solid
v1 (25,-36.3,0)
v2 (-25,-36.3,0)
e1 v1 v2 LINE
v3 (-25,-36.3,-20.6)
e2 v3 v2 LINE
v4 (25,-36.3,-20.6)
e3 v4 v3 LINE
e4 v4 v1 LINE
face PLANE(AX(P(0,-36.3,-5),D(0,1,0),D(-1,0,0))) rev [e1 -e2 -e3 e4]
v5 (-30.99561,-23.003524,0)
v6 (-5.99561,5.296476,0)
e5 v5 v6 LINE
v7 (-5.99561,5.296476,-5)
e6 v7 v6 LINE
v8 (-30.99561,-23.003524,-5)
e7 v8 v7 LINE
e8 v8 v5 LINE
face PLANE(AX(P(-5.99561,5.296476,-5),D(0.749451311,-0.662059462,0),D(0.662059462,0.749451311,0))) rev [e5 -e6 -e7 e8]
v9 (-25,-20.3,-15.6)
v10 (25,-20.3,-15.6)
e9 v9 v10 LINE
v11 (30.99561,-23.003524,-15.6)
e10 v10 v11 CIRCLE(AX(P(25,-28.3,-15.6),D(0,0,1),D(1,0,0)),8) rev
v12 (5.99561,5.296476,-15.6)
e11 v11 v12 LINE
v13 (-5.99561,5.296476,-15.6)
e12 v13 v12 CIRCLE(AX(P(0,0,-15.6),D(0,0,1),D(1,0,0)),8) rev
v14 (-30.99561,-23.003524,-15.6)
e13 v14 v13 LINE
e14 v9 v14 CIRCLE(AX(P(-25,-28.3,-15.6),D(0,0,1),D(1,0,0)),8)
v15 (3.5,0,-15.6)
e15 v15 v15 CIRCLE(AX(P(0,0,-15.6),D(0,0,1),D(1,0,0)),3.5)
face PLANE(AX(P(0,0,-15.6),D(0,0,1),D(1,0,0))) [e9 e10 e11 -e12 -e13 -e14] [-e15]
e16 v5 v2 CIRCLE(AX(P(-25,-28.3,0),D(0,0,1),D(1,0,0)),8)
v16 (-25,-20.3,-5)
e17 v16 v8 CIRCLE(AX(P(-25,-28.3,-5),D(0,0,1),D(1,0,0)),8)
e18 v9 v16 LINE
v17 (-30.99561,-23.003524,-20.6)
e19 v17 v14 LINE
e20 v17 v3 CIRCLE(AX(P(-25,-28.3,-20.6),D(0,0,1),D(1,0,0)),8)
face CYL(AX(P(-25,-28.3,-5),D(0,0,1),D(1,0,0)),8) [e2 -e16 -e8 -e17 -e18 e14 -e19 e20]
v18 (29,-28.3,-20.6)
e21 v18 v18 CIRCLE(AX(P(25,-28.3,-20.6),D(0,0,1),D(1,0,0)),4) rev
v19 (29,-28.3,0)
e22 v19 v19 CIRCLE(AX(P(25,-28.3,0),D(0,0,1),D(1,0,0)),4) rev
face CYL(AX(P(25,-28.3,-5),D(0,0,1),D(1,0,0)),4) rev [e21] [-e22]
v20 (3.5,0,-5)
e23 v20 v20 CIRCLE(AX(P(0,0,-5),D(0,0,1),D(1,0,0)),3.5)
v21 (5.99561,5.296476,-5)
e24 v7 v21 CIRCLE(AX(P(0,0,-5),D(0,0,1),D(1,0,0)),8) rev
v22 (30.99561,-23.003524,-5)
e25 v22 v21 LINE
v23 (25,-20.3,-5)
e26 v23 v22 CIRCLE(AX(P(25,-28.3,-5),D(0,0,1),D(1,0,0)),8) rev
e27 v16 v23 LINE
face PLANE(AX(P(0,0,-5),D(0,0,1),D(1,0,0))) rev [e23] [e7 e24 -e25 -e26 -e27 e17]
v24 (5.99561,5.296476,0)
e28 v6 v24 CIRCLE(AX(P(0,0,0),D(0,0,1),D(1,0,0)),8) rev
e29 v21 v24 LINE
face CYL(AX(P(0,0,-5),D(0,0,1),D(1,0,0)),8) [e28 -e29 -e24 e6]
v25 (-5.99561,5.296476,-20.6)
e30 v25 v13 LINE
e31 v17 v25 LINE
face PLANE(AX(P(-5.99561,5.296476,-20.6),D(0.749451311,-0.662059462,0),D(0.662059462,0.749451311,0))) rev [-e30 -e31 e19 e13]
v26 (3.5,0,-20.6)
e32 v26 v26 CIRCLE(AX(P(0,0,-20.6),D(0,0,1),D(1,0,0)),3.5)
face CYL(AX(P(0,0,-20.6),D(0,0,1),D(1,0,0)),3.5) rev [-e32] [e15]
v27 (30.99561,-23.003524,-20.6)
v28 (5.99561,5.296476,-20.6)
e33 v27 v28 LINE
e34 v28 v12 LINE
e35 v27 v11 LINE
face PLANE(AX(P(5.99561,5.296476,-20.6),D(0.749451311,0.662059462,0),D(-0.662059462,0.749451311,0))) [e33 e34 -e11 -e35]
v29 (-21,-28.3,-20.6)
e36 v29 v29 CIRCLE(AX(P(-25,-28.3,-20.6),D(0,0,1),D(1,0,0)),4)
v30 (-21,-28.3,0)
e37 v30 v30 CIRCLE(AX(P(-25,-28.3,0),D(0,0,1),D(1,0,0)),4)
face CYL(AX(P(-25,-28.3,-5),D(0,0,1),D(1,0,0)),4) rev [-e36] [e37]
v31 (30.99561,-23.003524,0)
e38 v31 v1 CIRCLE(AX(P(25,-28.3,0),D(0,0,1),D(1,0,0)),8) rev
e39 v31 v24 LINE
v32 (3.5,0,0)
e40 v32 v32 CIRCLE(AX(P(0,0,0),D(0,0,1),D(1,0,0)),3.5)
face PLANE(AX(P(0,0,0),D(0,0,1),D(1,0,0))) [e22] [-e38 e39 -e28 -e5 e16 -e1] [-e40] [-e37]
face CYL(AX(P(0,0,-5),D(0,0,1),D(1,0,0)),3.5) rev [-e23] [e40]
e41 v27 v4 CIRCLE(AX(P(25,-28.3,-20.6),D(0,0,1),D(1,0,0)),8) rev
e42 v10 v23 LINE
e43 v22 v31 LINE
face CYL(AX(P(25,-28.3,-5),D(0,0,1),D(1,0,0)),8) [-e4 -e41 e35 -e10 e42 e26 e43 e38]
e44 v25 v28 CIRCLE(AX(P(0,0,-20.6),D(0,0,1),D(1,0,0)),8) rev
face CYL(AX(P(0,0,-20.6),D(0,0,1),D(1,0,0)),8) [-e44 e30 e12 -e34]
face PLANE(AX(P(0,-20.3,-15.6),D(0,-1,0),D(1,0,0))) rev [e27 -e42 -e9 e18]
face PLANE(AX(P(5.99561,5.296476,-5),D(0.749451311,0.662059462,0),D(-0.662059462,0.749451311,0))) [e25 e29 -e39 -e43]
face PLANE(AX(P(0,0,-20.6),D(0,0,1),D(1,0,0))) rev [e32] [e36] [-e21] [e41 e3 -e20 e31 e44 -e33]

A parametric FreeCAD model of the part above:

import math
import FreeCAD as App
import Part
import Sketcher

doc = App.newDocument("Part")
body = doc.addObject("PartDesign::Body", "Body")

# Sketch on XY plane
sketch1 = body.newObject("Sketcher::SketchObject", "Sketch")
sketch1.AttachmentSupport = (doc.getObject("XY_Plane"), [""])
sketch1.MapMode = "FlatFace"
sketch1.addGeometry([
    Part.LineSegment(App.Vector(-25, -36.3, 0), App.Vector(25, -36.3, 0)),  # 0
    Part.ArcOfCircle(Part.Circle(App.Vector(25, -28.3, 0), App.Vector(0, 0, 1), 8), math.radians(-90), math.radians(41)),  # 1
    Part.LineSegment(App.Vector(31, -23, 0), App.Vector(6, 5.3, 0)),  # 2
    Part.ArcOfCircle(Part.Circle(App.Vector(0, 0, 0), App.Vector(0, 0, 1), 8), math.radians(41), math.radians(139)),  # 3
    Part.LineSegment(App.Vector(-6, 5.3, 0), App.Vector(-31, -23, 0)),  # 4
    Part.ArcOfCircle(Part.Circle(App.Vector(-25, -28.3, 0), App.Vector(0, 0, 1), 8), math.radians(139), math.radians(270)),  # 5
    Part.Circle(App.Vector(-25, -28.3, 0), App.Vector(0, 0, 1), 4),  # 6
    Part.Circle(App.Vector(25, -28.3, 0), App.Vector(0, 0, 1), 4),  # 7
    Part.Circle(App.Vector(0, 0, 0), App.Vector(0, 0, 1), 3.5),  # 8
], False)
sketch1.addConstraint([
    Sketcher.Constraint("Tangent", 0, 2, 1, 1),
    Sketcher.Constraint("Tangent", 1, 2, 2, 1),
    Sketcher.Constraint("Tangent", 2, 2, 3, 1),
    Sketcher.Constraint("Tangent", 3, 2, 4, 1),
    Sketcher.Constraint("Tangent", 4, 2, 5, 1),
    Sketcher.Constraint("Tangent", 5, 2, 0, 1),
    Sketcher.Constraint("Horizontal", 0),
    Sketcher.Constraint("Coincident", 3, 3, -1, 1),
    Sketcher.Constraint("Coincident", 8, 3, -1, 1),
    Sketcher.Constraint("Coincident", 6, 3, 5, 3),
    Sketcher.Constraint("Coincident", 7, 3, 1, 3),
    Sketcher.Constraint("Equal", 1, 3),
    Sketcher.Constraint("Equal", 3, 5),
    Sketcher.Constraint("Equal", 6, 7),
    Sketcher.Constraint("Horizontal", 2, 2, 3, 2),
    Sketcher.Constraint("Diameter", 6, 8.0),
    Sketcher.Constraint("Diameter", 8, 7.0),
    Sketcher.Constraint("Radius", 1, 8.0),
    Sketcher.Constraint("DistanceX", 0, 1, 0, 2, 50.0),
    Sketcher.Constraint("DistanceY", 1, 3, -1, 1, 28.3),
])
pad1 = body.newObject("PartDesign::Pad", "Pad")
pad1.Profile = sketch1
pad1.Length = 5
pad1.Reversed = True

# Sketch on XY plane
sketch2 = body.newObject("Sketcher::SketchObject", "Sketch001")
sketch2.AttachmentSupport = (doc.getObject("XY_Plane"), [""])
sketch2.MapMode = "FlatFace"
sketch2.AttachmentOffset = App.Placement(App.Vector(0, 0, -5), App.Rotation())
sketch2.addGeometry([
    Part.LineSegment(App.Vector(-25, -36.3, 0), App.Vector(25, -36.3, 0)),  # 0
    Part.ArcOfCircle(Part.Circle(App.Vector(25, -28.3, 0), App.Vector(0, 0, 1), 8), math.radians(-90), math.radians(41)),  # 1
    Part.ArcOfCircle(Part.Circle(App.Vector(25, -28.3, 0), App.Vector(0, 0, 1), 8), math.radians(41), math.radians(90)),  # 2
    Part.LineSegment(App.Vector(25, -20.3, 0), App.Vector(-25, -20.3, 0)),  # 3
    Part.ArcOfCircle(Part.Circle(App.Vector(-25, -28.3, 0), App.Vector(0, 0, 1), 8), math.radians(90), math.radians(139)),  # 4
    Part.ArcOfCircle(Part.Circle(App.Vector(-25, -28.3, 0), App.Vector(0, 0, 1), 8), math.radians(139), math.radians(270)),  # 5
    Part.Circle(App.Vector(-25, -28.3, 0), App.Vector(0, 0, 1), 4),  # 6
    Part.Circle(App.Vector(25, -28.3, 0), App.Vector(0, 0, 1), 4),  # 7
], False)
sketch2.addConstraint([
    Sketcher.Constraint("Tangent", 0, 2, 1, 1),
    Sketcher.Constraint("Tangent", 1, 2, 2, 1),
    Sketcher.Constraint("Tangent", 2, 2, 3, 1),
    Sketcher.Constraint("Tangent", 3, 2, 4, 1),
    Sketcher.Constraint("Tangent", 4, 2, 5, 1),
    Sketcher.Constraint("Tangent", 5, 2, 0, 1),
    Sketcher.Constraint("Horizontal", 0),
    Sketcher.Constraint("Horizontal", 3),
    Sketcher.Constraint("Coincident", 6, 3, 4, 3),
    Sketcher.Constraint("Coincident", 7, 3, 1, 3),
    Sketcher.Constraint("Equal", 1, 2),
    Sketcher.Constraint("Equal", 2, 4),
    Sketcher.Constraint("Equal", 6, 7),
    Sketcher.Constraint("Symmetric", 1, 2, 4, 2, -2),
    Sketcher.Constraint("Diameter", 6, 8.0),
    Sketcher.Constraint("Radius", 1, 8.0),
    Sketcher.Constraint("DistanceX", 0, 1, 0, 2, 50.0),
    Sketcher.Constraint("DistanceY", 1, 3, -1, 1, 28.3),
    Sketcher.Constraint("DistanceX", -1, 1, 1, 2, 30.99561),
])
pad2 = body.newObject("PartDesign::Pad", "Pad001")
pad2.Profile = sketch2
pad2.Length = 10.6
pad2.Reversed = True

# Sketch on XY plane
sketch3 = body.newObject("Sketcher::SketchObject", "Sketch002")
sketch3.AttachmentSupport = (doc.getObject("XY_Plane"), [""])
sketch3.MapMode = "FlatFace"
sketch3.AttachmentOffset = App.Placement(App.Vector(0, 0, -15.6), App.Rotation())
sketch3.addGeometry([
    Part.LineSegment(App.Vector(-25, -36.3, 0), App.Vector(25, -36.3, 0)),  # 0
    Part.ArcOfCircle(Part.Circle(App.Vector(25, -28.3, 0), App.Vector(0, 0, 1), 8), math.radians(-90), math.radians(41)),  # 1
    Part.LineSegment(App.Vector(31, -23, 0), App.Vector(6, 5.3, 0)),  # 2
    Part.ArcOfCircle(Part.Circle(App.Vector(0, 0, 0), App.Vector(0, 0, 1), 8), math.radians(41), math.radians(139)),  # 3
    Part.LineSegment(App.Vector(-6, 5.3, 0), App.Vector(-31, -23, 0)),  # 4
    Part.ArcOfCircle(Part.Circle(App.Vector(-25, -28.3, 0), App.Vector(0, 0, 1), 8), math.radians(139), math.radians(270)),  # 5
    Part.Circle(App.Vector(-25, -28.3, 0), App.Vector(0, 0, 1), 4),  # 6
    Part.Circle(App.Vector(25, -28.3, 0), App.Vector(0, 0, 1), 4),  # 7
    Part.Circle(App.Vector(0, 0, 0), App.Vector(0, 0, 1), 3.5),  # 8
], False)
sketch3.addConstraint([
    Sketcher.Constraint("Tangent", 0, 2, 1, 1),
    Sketcher.Constraint("Tangent", 1, 2, 2, 1),
    Sketcher.Constraint("Tangent", 2, 2, 3, 1),
    Sketcher.Constraint("Tangent", 3, 2, 4, 1),
    Sketcher.Constraint("Tangent", 4, 2, 5, 1),
    Sketcher.Constraint("Tangent", 5, 2, 0, 1),
    Sketcher.Constraint("Horizontal", 0),
    Sketcher.Constraint("Coincident", 3, 3, -1, 1),
    Sketcher.Constraint("Coincident", 8, 3, -1, 1),
    Sketcher.Constraint("Coincident", 6, 3, 5, 3),
    Sketcher.Constraint("Coincident", 7, 3, 1, 3),
    Sketcher.Constraint("Equal", 1, 3),
    Sketcher.Constraint("Equal", 3, 5),
    Sketcher.Constraint("Equal", 6, 7),
    Sketcher.Constraint("Horizontal", 2, 2, 3, 2),
    Sketcher.Constraint("Diameter", 6, 8.0),
    Sketcher.Constraint("Diameter", 8, 7.0),
    Sketcher.Constraint("Radius", 1, 8.0),
    Sketcher.Constraint("DistanceX", 0, 1, 0, 2, 50.0),
    Sketcher.Constraint("DistanceY", 1, 3, -1, 1, 28.3),
])
pad3 = body.newObject("PartDesign::Pad", "Pad002")
pad3.Profile = sketch3
pad3.Length = 5
pad3.Reversed = True

doc.recompute()
